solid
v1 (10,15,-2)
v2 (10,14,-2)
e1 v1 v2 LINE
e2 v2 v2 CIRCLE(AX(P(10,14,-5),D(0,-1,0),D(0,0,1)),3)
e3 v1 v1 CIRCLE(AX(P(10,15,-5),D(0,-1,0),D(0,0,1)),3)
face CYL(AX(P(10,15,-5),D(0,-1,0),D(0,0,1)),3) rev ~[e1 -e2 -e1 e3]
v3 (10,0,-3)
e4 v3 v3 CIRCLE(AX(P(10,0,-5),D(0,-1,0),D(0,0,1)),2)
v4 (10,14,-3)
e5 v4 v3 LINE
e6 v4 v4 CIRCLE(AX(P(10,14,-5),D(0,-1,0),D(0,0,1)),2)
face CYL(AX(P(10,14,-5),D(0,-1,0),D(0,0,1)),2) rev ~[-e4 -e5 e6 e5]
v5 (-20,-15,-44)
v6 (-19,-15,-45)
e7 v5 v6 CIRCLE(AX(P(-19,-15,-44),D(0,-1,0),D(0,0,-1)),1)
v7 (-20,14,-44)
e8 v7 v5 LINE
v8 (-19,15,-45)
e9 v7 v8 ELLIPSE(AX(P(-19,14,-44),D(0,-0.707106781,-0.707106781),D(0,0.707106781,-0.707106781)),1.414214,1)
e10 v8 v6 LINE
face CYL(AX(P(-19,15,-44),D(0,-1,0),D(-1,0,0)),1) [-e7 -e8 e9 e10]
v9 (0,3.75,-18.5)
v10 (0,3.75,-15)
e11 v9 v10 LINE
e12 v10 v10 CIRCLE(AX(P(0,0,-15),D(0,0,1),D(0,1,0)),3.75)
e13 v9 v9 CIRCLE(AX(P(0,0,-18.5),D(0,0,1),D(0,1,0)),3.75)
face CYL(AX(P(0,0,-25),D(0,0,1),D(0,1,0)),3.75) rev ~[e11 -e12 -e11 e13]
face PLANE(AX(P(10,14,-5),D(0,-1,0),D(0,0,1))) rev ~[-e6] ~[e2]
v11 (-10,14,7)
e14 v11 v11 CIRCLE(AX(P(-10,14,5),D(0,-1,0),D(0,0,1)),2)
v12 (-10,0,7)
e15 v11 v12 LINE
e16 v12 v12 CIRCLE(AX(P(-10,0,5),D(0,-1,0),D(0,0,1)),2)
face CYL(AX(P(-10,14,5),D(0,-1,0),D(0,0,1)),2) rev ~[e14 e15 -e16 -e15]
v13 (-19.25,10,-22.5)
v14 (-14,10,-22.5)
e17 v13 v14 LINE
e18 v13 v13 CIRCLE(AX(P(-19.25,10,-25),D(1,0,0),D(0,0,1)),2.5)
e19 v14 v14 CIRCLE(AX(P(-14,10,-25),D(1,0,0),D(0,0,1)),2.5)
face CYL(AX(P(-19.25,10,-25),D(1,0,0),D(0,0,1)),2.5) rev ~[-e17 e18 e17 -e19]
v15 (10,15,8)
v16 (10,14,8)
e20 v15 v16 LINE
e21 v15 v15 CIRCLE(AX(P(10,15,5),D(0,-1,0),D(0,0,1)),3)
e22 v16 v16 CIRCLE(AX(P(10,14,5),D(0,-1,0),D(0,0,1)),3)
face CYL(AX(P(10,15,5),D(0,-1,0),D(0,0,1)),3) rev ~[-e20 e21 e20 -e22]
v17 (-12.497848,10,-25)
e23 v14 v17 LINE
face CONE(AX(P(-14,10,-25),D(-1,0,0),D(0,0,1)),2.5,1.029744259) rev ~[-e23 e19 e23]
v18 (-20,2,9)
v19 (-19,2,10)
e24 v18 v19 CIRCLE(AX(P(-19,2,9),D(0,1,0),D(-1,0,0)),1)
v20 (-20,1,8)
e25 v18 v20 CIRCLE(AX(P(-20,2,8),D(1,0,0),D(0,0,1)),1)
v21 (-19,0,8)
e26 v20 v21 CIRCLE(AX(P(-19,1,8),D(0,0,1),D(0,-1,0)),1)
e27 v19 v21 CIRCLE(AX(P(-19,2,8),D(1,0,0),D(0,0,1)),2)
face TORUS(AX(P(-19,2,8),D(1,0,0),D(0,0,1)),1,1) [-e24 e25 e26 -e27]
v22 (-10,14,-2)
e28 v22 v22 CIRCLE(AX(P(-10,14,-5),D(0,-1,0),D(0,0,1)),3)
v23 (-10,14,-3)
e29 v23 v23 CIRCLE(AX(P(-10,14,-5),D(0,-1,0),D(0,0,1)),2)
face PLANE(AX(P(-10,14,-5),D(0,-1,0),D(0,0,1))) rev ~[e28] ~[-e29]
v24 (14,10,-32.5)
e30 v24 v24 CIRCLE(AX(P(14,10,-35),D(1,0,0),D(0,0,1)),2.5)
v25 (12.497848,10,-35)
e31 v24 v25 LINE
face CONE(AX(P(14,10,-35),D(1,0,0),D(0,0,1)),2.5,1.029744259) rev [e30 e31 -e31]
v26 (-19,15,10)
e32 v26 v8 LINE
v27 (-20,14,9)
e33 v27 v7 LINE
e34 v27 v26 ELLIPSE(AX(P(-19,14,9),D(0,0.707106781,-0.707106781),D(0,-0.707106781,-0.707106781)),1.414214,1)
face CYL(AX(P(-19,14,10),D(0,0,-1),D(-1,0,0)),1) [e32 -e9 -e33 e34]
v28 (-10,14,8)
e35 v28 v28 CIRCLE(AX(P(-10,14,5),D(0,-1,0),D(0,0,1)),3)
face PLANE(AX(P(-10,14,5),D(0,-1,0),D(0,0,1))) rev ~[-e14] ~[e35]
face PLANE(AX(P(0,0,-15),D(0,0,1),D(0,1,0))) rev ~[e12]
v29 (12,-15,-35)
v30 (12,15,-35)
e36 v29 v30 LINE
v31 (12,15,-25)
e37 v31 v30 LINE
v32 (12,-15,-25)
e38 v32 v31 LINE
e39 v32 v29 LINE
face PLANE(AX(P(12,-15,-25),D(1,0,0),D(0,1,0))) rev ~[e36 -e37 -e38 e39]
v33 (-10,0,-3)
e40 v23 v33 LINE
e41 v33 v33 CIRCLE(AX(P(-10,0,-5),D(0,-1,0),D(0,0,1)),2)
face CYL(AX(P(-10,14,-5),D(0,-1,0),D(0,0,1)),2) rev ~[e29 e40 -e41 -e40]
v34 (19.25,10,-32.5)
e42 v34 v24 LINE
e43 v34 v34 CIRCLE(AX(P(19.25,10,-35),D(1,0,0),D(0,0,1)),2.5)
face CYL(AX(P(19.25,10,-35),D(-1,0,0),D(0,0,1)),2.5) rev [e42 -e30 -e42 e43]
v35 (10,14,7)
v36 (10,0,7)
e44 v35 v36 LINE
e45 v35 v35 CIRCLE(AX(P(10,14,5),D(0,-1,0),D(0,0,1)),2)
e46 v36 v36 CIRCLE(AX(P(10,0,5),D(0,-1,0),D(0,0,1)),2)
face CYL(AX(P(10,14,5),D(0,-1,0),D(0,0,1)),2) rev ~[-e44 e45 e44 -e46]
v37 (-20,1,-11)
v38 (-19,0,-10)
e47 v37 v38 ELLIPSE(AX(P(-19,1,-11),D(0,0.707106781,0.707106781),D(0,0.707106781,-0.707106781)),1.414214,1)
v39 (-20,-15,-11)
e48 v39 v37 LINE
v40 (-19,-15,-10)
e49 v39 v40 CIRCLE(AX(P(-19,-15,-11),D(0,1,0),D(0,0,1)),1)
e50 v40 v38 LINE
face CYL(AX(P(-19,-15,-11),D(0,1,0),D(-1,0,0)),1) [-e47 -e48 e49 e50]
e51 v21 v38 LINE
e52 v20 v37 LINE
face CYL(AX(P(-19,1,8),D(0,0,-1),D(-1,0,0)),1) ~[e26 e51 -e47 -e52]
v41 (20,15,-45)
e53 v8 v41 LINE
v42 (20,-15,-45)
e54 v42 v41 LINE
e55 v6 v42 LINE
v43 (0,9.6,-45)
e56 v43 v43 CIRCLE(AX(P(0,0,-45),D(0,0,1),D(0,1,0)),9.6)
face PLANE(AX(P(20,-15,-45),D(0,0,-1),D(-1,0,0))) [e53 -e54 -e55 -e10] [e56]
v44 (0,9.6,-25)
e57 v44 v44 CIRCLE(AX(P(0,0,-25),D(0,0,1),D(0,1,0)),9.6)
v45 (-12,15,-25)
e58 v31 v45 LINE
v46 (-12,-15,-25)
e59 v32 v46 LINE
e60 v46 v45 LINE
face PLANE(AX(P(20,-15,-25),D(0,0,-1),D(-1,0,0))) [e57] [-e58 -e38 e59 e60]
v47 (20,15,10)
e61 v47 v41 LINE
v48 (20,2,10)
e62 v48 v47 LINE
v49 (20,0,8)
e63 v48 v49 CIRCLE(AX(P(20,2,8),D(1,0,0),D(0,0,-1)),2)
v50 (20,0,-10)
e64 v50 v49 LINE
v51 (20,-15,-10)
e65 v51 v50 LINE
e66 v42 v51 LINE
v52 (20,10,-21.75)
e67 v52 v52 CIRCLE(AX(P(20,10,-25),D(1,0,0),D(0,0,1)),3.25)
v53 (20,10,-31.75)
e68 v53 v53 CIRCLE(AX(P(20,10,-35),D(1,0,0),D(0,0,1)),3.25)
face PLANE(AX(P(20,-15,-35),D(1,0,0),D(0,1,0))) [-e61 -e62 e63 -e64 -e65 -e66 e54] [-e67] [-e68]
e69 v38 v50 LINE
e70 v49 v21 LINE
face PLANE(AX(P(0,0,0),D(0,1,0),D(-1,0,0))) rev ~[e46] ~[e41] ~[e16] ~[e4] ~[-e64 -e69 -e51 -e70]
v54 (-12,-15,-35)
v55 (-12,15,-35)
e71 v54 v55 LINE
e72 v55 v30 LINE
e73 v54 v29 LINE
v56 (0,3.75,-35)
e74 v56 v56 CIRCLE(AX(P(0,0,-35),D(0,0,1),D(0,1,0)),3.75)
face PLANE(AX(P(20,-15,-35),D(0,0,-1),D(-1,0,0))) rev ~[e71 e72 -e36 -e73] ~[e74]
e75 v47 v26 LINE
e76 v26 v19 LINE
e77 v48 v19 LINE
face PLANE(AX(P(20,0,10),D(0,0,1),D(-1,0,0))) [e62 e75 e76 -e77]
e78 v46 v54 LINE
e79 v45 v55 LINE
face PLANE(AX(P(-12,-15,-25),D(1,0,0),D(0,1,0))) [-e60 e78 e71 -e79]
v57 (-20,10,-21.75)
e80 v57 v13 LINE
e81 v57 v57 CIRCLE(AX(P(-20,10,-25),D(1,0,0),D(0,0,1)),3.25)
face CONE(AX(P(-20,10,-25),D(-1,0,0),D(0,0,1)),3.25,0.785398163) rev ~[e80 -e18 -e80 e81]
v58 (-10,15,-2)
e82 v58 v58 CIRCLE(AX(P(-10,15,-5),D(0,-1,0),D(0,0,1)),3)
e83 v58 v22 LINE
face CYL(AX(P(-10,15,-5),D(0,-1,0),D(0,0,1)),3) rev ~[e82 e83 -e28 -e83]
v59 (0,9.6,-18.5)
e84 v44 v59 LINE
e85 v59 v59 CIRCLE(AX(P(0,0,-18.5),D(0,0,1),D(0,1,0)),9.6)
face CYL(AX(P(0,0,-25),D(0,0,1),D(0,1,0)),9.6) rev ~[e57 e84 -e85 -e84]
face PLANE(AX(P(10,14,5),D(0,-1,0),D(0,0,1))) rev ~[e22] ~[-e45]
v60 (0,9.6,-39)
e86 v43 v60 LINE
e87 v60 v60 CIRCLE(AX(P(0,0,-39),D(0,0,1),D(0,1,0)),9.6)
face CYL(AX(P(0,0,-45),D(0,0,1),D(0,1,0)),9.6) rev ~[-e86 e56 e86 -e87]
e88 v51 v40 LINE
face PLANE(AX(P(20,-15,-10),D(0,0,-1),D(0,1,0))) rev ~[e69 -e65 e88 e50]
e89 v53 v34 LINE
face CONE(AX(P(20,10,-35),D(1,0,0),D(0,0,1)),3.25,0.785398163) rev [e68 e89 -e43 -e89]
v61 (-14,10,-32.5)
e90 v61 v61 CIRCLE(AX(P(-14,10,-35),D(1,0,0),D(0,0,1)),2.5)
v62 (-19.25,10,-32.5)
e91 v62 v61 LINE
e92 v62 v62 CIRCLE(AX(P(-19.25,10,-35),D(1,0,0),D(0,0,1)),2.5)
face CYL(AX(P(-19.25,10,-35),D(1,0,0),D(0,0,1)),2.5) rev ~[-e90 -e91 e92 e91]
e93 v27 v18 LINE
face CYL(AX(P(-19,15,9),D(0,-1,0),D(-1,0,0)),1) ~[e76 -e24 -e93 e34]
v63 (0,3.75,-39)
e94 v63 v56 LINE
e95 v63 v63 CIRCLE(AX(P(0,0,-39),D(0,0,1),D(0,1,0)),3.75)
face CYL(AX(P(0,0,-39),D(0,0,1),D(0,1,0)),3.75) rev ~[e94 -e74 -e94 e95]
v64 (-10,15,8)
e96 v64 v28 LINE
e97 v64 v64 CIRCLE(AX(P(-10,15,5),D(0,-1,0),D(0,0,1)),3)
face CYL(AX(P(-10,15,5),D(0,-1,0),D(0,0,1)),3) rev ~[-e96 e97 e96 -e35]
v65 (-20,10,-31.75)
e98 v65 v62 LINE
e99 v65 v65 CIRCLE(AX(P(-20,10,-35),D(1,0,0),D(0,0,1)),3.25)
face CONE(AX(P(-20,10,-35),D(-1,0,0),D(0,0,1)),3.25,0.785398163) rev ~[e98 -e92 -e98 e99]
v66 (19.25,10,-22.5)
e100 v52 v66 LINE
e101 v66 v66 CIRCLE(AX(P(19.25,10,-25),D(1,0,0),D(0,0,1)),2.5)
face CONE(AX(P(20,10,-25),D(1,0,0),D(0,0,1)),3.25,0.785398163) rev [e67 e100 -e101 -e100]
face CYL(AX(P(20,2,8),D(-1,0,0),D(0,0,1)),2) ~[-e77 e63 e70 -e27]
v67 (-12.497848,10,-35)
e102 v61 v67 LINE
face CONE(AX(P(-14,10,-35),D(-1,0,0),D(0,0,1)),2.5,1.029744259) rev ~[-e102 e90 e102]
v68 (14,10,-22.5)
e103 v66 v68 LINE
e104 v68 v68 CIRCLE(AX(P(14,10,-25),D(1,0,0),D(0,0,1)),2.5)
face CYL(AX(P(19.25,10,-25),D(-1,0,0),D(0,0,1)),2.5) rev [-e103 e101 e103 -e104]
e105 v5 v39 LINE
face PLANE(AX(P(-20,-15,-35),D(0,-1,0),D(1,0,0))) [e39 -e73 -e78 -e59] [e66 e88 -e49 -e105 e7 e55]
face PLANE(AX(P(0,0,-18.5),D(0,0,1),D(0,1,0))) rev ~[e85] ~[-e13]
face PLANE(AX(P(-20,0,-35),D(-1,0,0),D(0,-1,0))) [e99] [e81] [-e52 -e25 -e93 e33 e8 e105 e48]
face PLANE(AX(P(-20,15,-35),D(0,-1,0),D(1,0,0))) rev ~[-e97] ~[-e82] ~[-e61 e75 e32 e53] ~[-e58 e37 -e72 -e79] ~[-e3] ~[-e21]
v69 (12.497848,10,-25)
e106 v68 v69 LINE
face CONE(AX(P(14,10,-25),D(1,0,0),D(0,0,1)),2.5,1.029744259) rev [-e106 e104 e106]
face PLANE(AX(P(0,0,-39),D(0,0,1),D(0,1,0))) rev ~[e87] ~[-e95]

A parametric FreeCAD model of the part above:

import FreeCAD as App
import Part
import Sketcher


def edges_at(feature, points):
    """Names of the edges that pass closest to the given points."""
    edges = feature.Shape.Edges
    near = lambda p: min(range(len(edges)), key=lambda i: edges[i].distToShape(Part.Vertex(*p))[0])
    return sorted({f"Edge{near(p) + 1}" for p in points})


def add_polygon(sketch, points):
    """Adds a closed chain of lines whose ends are joined by coincident constraints."""
    first, n = sketch.GeometryCount, len(points)
    for a, b in zip(points, points[1:] + points[:1]):
        sketch.addGeometry(Part.LineSegment(App.Vector(*a, 0), App.Vector(*b, 0)), False)
    for i in range(n):
        sketch.addConstraint(Sketcher.Constraint("Coincident", first + i, 2, first + (i + 1) % n, 1))

doc = App.newDocument("Part")
body = doc.addObject("PartDesign::Body", "Body")

# Sketch on XZ plane
sketch1 = body.newObject("Sketcher::SketchObject", "Sketch")
sketch1.AttachmentSupport = (doc.getObject("XZ_Plane"), [""])
sketch1.MapMode = "FlatFace"
add_polygon(sketch1, [(-20, 10), (20, 10), (20, -10), (-20, -10)])  # lines 0-3
sketch1.addConstraint([
    Sketcher.Constraint("Horizontal", 0),
    Sketcher.Constraint("Vertical", 1),
    Sketcher.Constraint("Horizontal", 2),
    Sketcher.Constraint("Vertical", 3),
    Sketcher.Constraint("Symmetric", 0, 2, 2, 2, -1, 1),
    Sketcher.Constraint("DistanceX", 0, 1, 0, 2, 40.0),
    Sketcher.Constraint("DistanceY", 1, 2, 1, 1, 20.0),
])
pad1 = body.newObject("PartDesign::Pad", "Pad")
pad1.Profile = sketch1
pad1.Length = 15
pad1.Reversed = True

# Sketch on XZ plane
sketch2 = body.newObject("Sketcher::SketchObject", "Sketch001")
sketch2.AttachmentSupport = (doc.getObject("XZ_Plane"), [""])
sketch2.MapMode = "FlatFace"
sketch2.AttachmentOffset = App.Placement(App.Vector(0, 0, -15), App.Rotation())
sketch2.addGeometry([
    Part.Circle(App.Vector(-10, -5, 0), App.Vector(0, 0, 1), 2),
    Part.Circle(App.Vector(-10, 5, 0), App.Vector(0, 0, 1), 2),
    Part.Circle(App.Vector(10, 5, 0), App.Vector(0, 0, 1), 2),
    Part.Circle(App.Vector(10, -5, 0), App.Vector(0, 0, 1), 2),
], False)
sketch2.addConstraint([
    Sketcher.Constraint("Equal", 0, 1),
    Sketcher.Constraint("Equal", 1, 2),
    Sketcher.Constraint("Equal", 2, 3),
    Sketcher.Constraint("Symmetric", 0, 3, 2, 3, -1, 1),
    Sketcher.Constraint("Symmetric", 1, 3, 3, 3, -1, 1),
    Sketcher.Constraint("Symmetric", 1, 3, 2, 3, -2),
    Sketcher.Constraint("Diameter", 0, 4.0),
    Sketcher.Constraint("DistanceX", 0, 3, -1, 1, 10.0),
    Sketcher.Constraint("DistanceY", 0, 3, -1, 1, 5.0),
])
doc.recompute()
hole = body.newObject("PartDesign::Hole", "Hole")
hole.Profile = sketch2
hole.ThreadType = "None"
hole.Diameter = 4
hole.DepthType = "ThroughAll"
hole.HoleCutType = "Counterbore"
hole.HoleCutDiameter = 6
hole.HoleCutDepth = 1
hole.Reversed = True
doc.recompute()

fillet = body.newObject("PartDesign::Fillet", "Fillet")
fillet.Base = (hole, edges_at(hole, [(0, 0, 10)]))
fillet.Radius = 2

# Sketch on YZ plane
sketch3 = body.newObject("Sketcher::SketchObject", "Sketch002")
sketch3.AttachmentSupport = (doc.getObject("YZ_Plane"), [""])
sketch3.MapMode = "FlatFace"
sketch3.AttachmentOffset = App.Placement(App.Vector(0, 0, 20), App.Rotation())
add_polygon(sketch3, [(15, -10), (-15, -10), (-15, -15), (15, -15)])  # lines 0-3
sketch3.addConstraint([
    Sketcher.Constraint("Horizontal", 0),
    Sketcher.Constraint("Vertical", 1),
    Sketcher.Constraint("Horizontal", 2),
    Sketcher.Constraint("Vertical", 3),
    Sketcher.Constraint("DistanceX", 0, 2, 0, 1, 30.0),
    Sketcher.Constraint("DistanceY", 1, 2, 1, 1, 5.0),
    Sketcher.Constraint("DistanceX", 0, 2, -1, 1, 15.0),
    Sketcher.Constraint("DistanceY", 0, 2, -1, 1, 10.0),
])
pad2 = body.newObject("PartDesign::Pad", "Pad001")
pad2.Profile = sketch3
pad2.Length = 40
pad2.Reversed = True

# Sketch on XY plane
sketch4 = body.newObject("Sketcher::SketchObject", "Sketch003")
sketch4.AttachmentSupport = (doc.getObject("XY_Plane"), [""])
sketch4.MapMode = "FlatFace"
sketch4.AttachmentOffset = App.Placement(App.Vector(0, 0, -15), App.Rotation())
add_polygon(sketch4, [(20, 15), (20, -15), (-20, -15), (-20, 15)])  # lines 0-3
sketch4.addConstraint([
    Sketcher.Constraint("Vertical", 0),
    Sketcher.Constraint("Horizontal", 1),
    Sketcher.Constraint("Vertical", 2),
    Sketcher.Constraint("Horizontal", 3),
    Sketcher.Constraint("Symmetric", 0, 2, 2, 2, -1, 1),
    Sketcher.Constraint("DistanceX", 1, 2, 1, 1, 40.0),
    Sketcher.Constraint("DistanceY", 0, 2, 0, 1, 30.0),
])
pad3 = body.newObject("PartDesign::Pad", "Pad002")
pad3.Profile = sketch4
pad3.Length = 10
pad3.Reversed = True

# Sketch on XY plane
sketch5 = body.newObject("Sketcher::SketchObject", "Sketch004")
sketch5.AttachmentSupport = (doc.getObject("XY_Plane"), [""])
sketch5.MapMode = "FlatFace"
sketch5.AttachmentOffset = App.Placement(App.Vector(0, 0, -25), App.Rotation())
sketch5.addGeometry(Part.Circle(App.Vector(0, 0, 0), App.Vector(0, 0, 1), 3.8), False)
sketch5.addConstraint([
    Sketcher.Constraint("Coincident", 0, 3, -1, 1),
    Sketcher.Constraint("Diameter", 0, 7.5),
])
doc.recompute()
hole2 = body.newObject("PartDesign::Hole", "Hole001")
hole2.Profile = sketch5
hole2.ThreadType = "None"
hole2.Diameter = 7.5
hole2.DepthType = "Dimension"
hole2.Depth = 10
hole2.DrillPoint = "Flat"
hole2.Reversed = True

# Sketch on XY plane
sketch6 = body.newObject("Sketcher::SketchObject", "Sketch005")
sketch6.AttachmentSupport = (doc.getObject("XY_Plane"), [""])
sketch6.MapMode = "FlatFace"
sketch6.AttachmentOffset = App.Placement(App.Vector(0, 0, -25), App.Rotation())
sketch6.addGeometry(Part.Circle(App.Vector(0, 0, 0), App.Vector(0, 0, 1), 10), False)
sketch6.addConstraint([
    Sketcher.Constraint("Coincident", 0, 3, -1, 1),
    Sketcher.Constraint("Diameter", 0, 19.2),
])
doc.recompute()
hole3 = body.newObject("PartDesign::Hole", "Hole002")
hole3.Profile = sketch6
hole3.ThreadType = "None"
hole3.Diameter = 19.2
hole3.DepthType = "Dimension"
hole3.Depth = 6.5
hole3.DrillPoint = "Flat"
hole3.Reversed = True

# Sketch on XY plane
sketch7 = body.newObject("Sketcher::SketchObject", "Sketch006")
sketch7.AttachmentSupport = (doc.getObject("XY_Plane"), [""])
sketch7.MapMode = "FlatFace"
sketch7.AttachmentOffset = App.Placement(App.Vector(0, 0, -25), App.Rotation())
add_polygon(sketch7, [(-12, -15), (-20, -15), (-20, 15), (-12, 15)])  # lines 0-3
add_polygon(sketch7, [(12, -15), (12, 15), (20, 15), (20, -15)])  # lines 4-7
sketch7.addConstraint([
    Sketcher.Constraint("Horizontal", 0),
    Sketcher.Constraint("Vertical", 1),
    Sketcher.Constraint("Horizontal", 2),
    Sketcher.Constraint("Vertical", 3),
    Sketcher.Constraint("Vertical", 4),
    Sketcher.Constraint("Horizontal", 5),
    Sketcher.Constraint("Vertical", 6),
    Sketcher.Constraint("Horizontal", 7),
    Sketcher.Constraint("Symmetric", 3, 2, 4, 2, -1, 1),
    Sketcher.Constraint("Symmetric", 1, 2, 6, 2, -1, 1),
    Sketcher.Constraint("Horizontal", 2, 2, 4, 2),
    Sketcher.Constraint("DistanceX", 0, 2, 0, 1, 8.0),
    Sketcher.Constraint("DistanceY", 1, 1, 1, 2, 30.0),
    Sketcher.Constraint("DistanceX", 0, 2, -1, 1, 20.0),
])
pad4 = body.newObject("PartDesign::Pad", "Pad003")
pad4.Profile = sketch7
pad4.Length = 10
pad4.Reversed = True

# Sketch on XY plane
sketch8 = body.newObject("Sketcher::SketchObject", "Sketch007")
sketch8.AttachmentSupport = (doc.getObject("XY_Plane"), [""])
sketch8.MapMode = "FlatFace"
sketch8.AttachmentOffset = App.Placement(App.Vector(0, 0, -35), App.Rotation())
add_polygon(sketch8, [(-20, -15), (-20, 15), (20, 15), (20, -15)])  # lines 0-3
sketch8.addConstraint([
    Sketcher.Constraint("Vertical", 0),
    Sketcher.Constraint("Horizontal", 1),
    Sketcher.Constraint("Vertical", 2),
    Sketcher.Constraint("Horizontal", 3),
    Sketcher.Constraint("Symmetric", 0, 2, 2, 2, -1, 1),
    Sketcher.Constraint("DistanceX", 1, 1, 1, 2, 40.0),
    Sketcher.Constraint("DistanceY", 0, 1, 0, 2, 30.0),
])
pad5 = body.newObject("PartDesign::Pad", "Pad004")
pad5.Profile = sketch8
pad5.Length = 10
pad5.Reversed = True

# Sketch on XY plane
sketch9 = body.newObject("Sketcher::SketchObject", "Sketch008")
sketch9.AttachmentSupport = (doc.getObject("XY_Plane"), [""])
sketch9.MapMode = "FlatFace"
sketch9.AttachmentOffset = App.Placement(App.Vector(0, 0, -45), App.Rotation())
sketch9.addGeometry(Part.Circle(App.Vector(0, 0, 0), App.Vector(0, 0, 1), 3.8), False)
sketch9.addConstraint([
    Sketcher.Constraint("Coincident", 0, 3, -1, 1),
    Sketcher.Constraint("Diameter", 0, 7.5),
])
doc.recompute()
hole4 = body.newObject("PartDesign::Hole", "Hole003")
hole4.Profile = sketch9
hole4.ThreadType = "None"
hole4.Diameter = 7.5
hole4.DepthType = "Dimension"
hole4.Depth = 10
hole4.DrillPoint = "Flat"
hole4.HoleCutType = "Counterbore"
hole4.HoleCutDiameter = 19.2
hole4.HoleCutDepth = 6
hole4.Reversed = True

# Sketch on YZ plane
sketch10 = body.newObject("Sketcher::SketchObject", "Sketch009")
sketch10.AttachmentSupport = (doc.getObject("YZ_Plane"), [""])
sketch10.MapMode = "FlatFace"
sketch10.AttachmentOffset = App.Placement(App.Vector(0, 0, -20), App.Rotation())
sketch10.addGeometry([
    Part.Circle(App.Vector(10, -35, 0), App.Vector(0, 0, 1), 2.5),
    Part.Circle(App.Vector(10, -25, 0), App.Vector(0, 0, 1), 2.5),
], False)
sketch10.addConstraint([
    Sketcher.Constraint("Equal", 0, 1),
    Sketcher.Constraint("Vertical", 0, 3, 1, 3),
    Sketcher.Constraint("Diameter", 0, 5.0),
    Sketcher.Constraint("DistanceX", -1, 1, 0, 3, 10.0),
    Sketcher.Constraint("DistanceY", 0, 3, -1, 1, 35.0),
    Sketcher.Constraint("DistanceY", 1, 3, -1, 1, 25.0),
])
doc.recompute()
hole5 = body.newObject("PartDesign::Hole", "Hole004")
hole5.Profile = sketch10
hole5.ThreadType = "None"
hole5.Diameter = 5
hole5.DepthType = "Dimension"
hole5.Depth = 6
hole5.DrillPoint = "Angled"
hole5.DrillPointAngle = 118
hole5.HoleCutType = "Countersink"
hole5.HoleCutDiameter = 6.5
hole5.HoleCutCountersinkAngle = 90
hole5.Reversed = True
doc.recompute()

mirrored = body.newObject("PartDesign::Mirrored", "Mirrored")
mirrored.Originals = [hole5]
mirrored.MirrorPlane = (doc.getObject("YZ_Plane"), [""])
body.Tip = mirrored
doc.recompute()

fillet2 = body.newObject("PartDesign::Fillet", "Fillet001")
fillet2.Base = (mirrored, edges_at(mirrored, [
    (-20, 15, -17.5),
    (-20, 0.586, 9.414),
    (-20, 0, -1),
    (-20, 8.5, 10),
    (-20, -7.5, -10),
    (-20, 0, -45),
]))
fillet2.Radius = 1

doc.recompute()
